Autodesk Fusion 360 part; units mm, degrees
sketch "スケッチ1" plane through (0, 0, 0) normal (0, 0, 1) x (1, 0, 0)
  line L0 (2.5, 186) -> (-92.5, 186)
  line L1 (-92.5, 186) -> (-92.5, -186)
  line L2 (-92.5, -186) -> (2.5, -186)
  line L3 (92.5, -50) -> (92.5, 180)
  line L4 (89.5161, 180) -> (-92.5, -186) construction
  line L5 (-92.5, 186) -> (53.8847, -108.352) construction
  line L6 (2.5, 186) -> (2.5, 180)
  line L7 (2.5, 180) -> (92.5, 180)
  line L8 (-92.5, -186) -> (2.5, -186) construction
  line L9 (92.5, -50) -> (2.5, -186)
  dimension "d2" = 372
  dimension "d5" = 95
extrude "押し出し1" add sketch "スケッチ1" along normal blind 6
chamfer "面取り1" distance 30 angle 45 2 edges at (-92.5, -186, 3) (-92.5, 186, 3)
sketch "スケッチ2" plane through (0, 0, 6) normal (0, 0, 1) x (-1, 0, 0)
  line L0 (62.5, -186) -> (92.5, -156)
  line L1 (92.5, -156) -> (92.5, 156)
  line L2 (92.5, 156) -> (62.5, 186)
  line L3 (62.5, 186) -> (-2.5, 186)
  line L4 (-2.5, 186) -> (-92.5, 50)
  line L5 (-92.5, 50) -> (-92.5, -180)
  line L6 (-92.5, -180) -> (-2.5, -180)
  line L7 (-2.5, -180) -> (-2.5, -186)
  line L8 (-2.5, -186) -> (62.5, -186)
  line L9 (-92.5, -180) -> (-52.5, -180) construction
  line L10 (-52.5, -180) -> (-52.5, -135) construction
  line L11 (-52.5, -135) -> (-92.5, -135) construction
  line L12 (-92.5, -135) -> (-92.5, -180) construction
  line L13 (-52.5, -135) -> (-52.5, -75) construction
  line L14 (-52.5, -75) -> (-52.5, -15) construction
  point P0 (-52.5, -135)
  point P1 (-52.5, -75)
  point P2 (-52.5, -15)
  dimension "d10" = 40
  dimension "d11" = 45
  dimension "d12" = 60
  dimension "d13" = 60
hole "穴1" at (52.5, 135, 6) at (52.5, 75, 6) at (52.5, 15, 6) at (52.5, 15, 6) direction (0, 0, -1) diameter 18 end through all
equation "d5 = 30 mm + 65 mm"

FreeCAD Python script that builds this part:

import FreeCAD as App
import Part
import Sketcher


def edges_at(feature, points):
    """Names of the edges that pass closest to the given points."""
    edges = feature.Shape.Edges
    near = lambda p: min(range(len(edges)), key=lambda i: edges[i].distToShape(Part.Vertex(*p))[0])
    return sorted({f"Edge{near(p) + 1}" for p in points})


def add_polygon(sketch, points):
    """Adds a closed chain of lines whose ends are joined by coincident constraints."""
    first, n = sketch.GeometryCount, len(points)
    for a, b in zip(points, points[1:] + points[:1]):
        sketch.addGeometry(Part.LineSegment(App.Vector(*a, 0), App.Vector(*b, 0)), False)
    for i in range(n):
        sketch.addConstraint(Sketcher.Constraint("Coincident", first + i, 2, first + (i + 1) % n, 1))

doc = App.newDocument("Part")
body = doc.addObject("PartDesign::Body", "Body")

# Sketch on XY plane
sketch1 = doc.addObject("Sketcher::SketchObject", "Sketch")
body.addObject(sketch1)
sketch1.AttachmentSupport = (doc.XY_Plane, [""])
sketch1.MapMode = "FlatFace"
add_polygon(sketch1, [(2, 180), (2, 186), (-92, 186), (-92, -186), (2, -186), (92, -50), (92, 180)])  # lines 0-6
sketch1.addConstraint([
    Sketcher.Constraint("Vertical", 0),
    Sketcher.Constraint("Horizontal", 1),
    Sketcher.Constraint("Vertical", 2),
    Sketcher.Constraint("Horizontal", 3),
    Sketcher.Constraint("Vertical", 5),
    Sketcher.Constraint("Horizontal", 6),
    Sketcher.Constraint("Symmetric", 0, 2, 3, 2, -1),
    Sketcher.Constraint("DistanceX", 1, 2, 1, 1, 95.0),
    Sketcher.Constraint("DistanceY", 2, 2, 2, 1, 372.0),
    Sketcher.Constraint("DistanceX", 6, 2, 6, 1, 90.0),
    Sketcher.Constraint("DistanceY", 0, 1, 0, 2, 6.0),
    Sketcher.Constraint("DistanceY", 5, 1, 5, 2, 230.0),
    Sketcher.Constraint("DistanceX", -1, 1, 0, 2, 2.5),
])
pad1 = doc.addObject("PartDesign::Pad", "Pad")
body.addObject(pad1)
pad1.Profile = sketch1
pad1.Length = 6
doc.recompute()

chamfer = doc.addObject("PartDesign::Chamfer", "Chamfer")
body.addObject(chamfer)
chamfer.Base = (pad1, edges_at(pad1, [(-92.5, -186, 3), (-92.5, 186, 3)]))
chamfer.Size = 30

# Sketch on XY plane
sketch2 = doc.addObject("Sketcher::SketchObject", "Sketch001")
body.addObject(sketch2)
sketch2.AttachmentSupport = (doc.XY_Plane, [""])
sketch2.MapMode = "FlatFace"
sketch2.AttachmentOffset = App.Placement(App.Vector(0, 0, 6), App.Rotation())
sketch2.addGeometry([
    Part.Circle(App.Vector(52, 135, 0), App.Vector(0, 0, 1), 9),
    Part.Circle(App.Vector(52, 75, 0), App.Vector(0, 0, 1), 9),
    Part.Circle(App.Vector(52, 15, 0), App.Vector(0, 0, 1), 9),
    Part.Circle(App.Vector(52, 15, 0), App.Vector(0, 0, 1), 9),
], False)
sketch2.addConstraint([
    Sketcher.Constraint("Coincident", 3, 3, 2, 3),
    Sketcher.Constraint("Equal", 0, 1),
    Sketcher.Constraint("Equal", 1, 2),
    Sketcher.Constraint("Equal", 2, 3),
    Sketcher.Constraint("Vertical", 0, 3, 1, 3),
    Sketcher.Constraint("Vertical", 1, 3, 2, 3),
    Sketcher.Constraint("Diameter", 0, 18.0),
    Sketcher.Constraint("DistanceY", -1, 1, 0, 3, 135.0),
    Sketcher.Constraint("DistanceY", -1, 1, 1, 3, 75.0),
    Sketcher.Constraint("DistanceY", -1, 1, 2, 3, 15.0),
    Sketcher.Constraint("DistanceX", -1, 1, 0, 3, 52.5),
])
doc.recompute()
hole = doc.addObject("PartDesign::Hole", "Hole")
body.addObject(hole)
hole.Profile = sketch2
hole.ThreadType = "None"
hole.Diameter = 18
hole.DepthType = "ThroughAll"

doc.recompute()
